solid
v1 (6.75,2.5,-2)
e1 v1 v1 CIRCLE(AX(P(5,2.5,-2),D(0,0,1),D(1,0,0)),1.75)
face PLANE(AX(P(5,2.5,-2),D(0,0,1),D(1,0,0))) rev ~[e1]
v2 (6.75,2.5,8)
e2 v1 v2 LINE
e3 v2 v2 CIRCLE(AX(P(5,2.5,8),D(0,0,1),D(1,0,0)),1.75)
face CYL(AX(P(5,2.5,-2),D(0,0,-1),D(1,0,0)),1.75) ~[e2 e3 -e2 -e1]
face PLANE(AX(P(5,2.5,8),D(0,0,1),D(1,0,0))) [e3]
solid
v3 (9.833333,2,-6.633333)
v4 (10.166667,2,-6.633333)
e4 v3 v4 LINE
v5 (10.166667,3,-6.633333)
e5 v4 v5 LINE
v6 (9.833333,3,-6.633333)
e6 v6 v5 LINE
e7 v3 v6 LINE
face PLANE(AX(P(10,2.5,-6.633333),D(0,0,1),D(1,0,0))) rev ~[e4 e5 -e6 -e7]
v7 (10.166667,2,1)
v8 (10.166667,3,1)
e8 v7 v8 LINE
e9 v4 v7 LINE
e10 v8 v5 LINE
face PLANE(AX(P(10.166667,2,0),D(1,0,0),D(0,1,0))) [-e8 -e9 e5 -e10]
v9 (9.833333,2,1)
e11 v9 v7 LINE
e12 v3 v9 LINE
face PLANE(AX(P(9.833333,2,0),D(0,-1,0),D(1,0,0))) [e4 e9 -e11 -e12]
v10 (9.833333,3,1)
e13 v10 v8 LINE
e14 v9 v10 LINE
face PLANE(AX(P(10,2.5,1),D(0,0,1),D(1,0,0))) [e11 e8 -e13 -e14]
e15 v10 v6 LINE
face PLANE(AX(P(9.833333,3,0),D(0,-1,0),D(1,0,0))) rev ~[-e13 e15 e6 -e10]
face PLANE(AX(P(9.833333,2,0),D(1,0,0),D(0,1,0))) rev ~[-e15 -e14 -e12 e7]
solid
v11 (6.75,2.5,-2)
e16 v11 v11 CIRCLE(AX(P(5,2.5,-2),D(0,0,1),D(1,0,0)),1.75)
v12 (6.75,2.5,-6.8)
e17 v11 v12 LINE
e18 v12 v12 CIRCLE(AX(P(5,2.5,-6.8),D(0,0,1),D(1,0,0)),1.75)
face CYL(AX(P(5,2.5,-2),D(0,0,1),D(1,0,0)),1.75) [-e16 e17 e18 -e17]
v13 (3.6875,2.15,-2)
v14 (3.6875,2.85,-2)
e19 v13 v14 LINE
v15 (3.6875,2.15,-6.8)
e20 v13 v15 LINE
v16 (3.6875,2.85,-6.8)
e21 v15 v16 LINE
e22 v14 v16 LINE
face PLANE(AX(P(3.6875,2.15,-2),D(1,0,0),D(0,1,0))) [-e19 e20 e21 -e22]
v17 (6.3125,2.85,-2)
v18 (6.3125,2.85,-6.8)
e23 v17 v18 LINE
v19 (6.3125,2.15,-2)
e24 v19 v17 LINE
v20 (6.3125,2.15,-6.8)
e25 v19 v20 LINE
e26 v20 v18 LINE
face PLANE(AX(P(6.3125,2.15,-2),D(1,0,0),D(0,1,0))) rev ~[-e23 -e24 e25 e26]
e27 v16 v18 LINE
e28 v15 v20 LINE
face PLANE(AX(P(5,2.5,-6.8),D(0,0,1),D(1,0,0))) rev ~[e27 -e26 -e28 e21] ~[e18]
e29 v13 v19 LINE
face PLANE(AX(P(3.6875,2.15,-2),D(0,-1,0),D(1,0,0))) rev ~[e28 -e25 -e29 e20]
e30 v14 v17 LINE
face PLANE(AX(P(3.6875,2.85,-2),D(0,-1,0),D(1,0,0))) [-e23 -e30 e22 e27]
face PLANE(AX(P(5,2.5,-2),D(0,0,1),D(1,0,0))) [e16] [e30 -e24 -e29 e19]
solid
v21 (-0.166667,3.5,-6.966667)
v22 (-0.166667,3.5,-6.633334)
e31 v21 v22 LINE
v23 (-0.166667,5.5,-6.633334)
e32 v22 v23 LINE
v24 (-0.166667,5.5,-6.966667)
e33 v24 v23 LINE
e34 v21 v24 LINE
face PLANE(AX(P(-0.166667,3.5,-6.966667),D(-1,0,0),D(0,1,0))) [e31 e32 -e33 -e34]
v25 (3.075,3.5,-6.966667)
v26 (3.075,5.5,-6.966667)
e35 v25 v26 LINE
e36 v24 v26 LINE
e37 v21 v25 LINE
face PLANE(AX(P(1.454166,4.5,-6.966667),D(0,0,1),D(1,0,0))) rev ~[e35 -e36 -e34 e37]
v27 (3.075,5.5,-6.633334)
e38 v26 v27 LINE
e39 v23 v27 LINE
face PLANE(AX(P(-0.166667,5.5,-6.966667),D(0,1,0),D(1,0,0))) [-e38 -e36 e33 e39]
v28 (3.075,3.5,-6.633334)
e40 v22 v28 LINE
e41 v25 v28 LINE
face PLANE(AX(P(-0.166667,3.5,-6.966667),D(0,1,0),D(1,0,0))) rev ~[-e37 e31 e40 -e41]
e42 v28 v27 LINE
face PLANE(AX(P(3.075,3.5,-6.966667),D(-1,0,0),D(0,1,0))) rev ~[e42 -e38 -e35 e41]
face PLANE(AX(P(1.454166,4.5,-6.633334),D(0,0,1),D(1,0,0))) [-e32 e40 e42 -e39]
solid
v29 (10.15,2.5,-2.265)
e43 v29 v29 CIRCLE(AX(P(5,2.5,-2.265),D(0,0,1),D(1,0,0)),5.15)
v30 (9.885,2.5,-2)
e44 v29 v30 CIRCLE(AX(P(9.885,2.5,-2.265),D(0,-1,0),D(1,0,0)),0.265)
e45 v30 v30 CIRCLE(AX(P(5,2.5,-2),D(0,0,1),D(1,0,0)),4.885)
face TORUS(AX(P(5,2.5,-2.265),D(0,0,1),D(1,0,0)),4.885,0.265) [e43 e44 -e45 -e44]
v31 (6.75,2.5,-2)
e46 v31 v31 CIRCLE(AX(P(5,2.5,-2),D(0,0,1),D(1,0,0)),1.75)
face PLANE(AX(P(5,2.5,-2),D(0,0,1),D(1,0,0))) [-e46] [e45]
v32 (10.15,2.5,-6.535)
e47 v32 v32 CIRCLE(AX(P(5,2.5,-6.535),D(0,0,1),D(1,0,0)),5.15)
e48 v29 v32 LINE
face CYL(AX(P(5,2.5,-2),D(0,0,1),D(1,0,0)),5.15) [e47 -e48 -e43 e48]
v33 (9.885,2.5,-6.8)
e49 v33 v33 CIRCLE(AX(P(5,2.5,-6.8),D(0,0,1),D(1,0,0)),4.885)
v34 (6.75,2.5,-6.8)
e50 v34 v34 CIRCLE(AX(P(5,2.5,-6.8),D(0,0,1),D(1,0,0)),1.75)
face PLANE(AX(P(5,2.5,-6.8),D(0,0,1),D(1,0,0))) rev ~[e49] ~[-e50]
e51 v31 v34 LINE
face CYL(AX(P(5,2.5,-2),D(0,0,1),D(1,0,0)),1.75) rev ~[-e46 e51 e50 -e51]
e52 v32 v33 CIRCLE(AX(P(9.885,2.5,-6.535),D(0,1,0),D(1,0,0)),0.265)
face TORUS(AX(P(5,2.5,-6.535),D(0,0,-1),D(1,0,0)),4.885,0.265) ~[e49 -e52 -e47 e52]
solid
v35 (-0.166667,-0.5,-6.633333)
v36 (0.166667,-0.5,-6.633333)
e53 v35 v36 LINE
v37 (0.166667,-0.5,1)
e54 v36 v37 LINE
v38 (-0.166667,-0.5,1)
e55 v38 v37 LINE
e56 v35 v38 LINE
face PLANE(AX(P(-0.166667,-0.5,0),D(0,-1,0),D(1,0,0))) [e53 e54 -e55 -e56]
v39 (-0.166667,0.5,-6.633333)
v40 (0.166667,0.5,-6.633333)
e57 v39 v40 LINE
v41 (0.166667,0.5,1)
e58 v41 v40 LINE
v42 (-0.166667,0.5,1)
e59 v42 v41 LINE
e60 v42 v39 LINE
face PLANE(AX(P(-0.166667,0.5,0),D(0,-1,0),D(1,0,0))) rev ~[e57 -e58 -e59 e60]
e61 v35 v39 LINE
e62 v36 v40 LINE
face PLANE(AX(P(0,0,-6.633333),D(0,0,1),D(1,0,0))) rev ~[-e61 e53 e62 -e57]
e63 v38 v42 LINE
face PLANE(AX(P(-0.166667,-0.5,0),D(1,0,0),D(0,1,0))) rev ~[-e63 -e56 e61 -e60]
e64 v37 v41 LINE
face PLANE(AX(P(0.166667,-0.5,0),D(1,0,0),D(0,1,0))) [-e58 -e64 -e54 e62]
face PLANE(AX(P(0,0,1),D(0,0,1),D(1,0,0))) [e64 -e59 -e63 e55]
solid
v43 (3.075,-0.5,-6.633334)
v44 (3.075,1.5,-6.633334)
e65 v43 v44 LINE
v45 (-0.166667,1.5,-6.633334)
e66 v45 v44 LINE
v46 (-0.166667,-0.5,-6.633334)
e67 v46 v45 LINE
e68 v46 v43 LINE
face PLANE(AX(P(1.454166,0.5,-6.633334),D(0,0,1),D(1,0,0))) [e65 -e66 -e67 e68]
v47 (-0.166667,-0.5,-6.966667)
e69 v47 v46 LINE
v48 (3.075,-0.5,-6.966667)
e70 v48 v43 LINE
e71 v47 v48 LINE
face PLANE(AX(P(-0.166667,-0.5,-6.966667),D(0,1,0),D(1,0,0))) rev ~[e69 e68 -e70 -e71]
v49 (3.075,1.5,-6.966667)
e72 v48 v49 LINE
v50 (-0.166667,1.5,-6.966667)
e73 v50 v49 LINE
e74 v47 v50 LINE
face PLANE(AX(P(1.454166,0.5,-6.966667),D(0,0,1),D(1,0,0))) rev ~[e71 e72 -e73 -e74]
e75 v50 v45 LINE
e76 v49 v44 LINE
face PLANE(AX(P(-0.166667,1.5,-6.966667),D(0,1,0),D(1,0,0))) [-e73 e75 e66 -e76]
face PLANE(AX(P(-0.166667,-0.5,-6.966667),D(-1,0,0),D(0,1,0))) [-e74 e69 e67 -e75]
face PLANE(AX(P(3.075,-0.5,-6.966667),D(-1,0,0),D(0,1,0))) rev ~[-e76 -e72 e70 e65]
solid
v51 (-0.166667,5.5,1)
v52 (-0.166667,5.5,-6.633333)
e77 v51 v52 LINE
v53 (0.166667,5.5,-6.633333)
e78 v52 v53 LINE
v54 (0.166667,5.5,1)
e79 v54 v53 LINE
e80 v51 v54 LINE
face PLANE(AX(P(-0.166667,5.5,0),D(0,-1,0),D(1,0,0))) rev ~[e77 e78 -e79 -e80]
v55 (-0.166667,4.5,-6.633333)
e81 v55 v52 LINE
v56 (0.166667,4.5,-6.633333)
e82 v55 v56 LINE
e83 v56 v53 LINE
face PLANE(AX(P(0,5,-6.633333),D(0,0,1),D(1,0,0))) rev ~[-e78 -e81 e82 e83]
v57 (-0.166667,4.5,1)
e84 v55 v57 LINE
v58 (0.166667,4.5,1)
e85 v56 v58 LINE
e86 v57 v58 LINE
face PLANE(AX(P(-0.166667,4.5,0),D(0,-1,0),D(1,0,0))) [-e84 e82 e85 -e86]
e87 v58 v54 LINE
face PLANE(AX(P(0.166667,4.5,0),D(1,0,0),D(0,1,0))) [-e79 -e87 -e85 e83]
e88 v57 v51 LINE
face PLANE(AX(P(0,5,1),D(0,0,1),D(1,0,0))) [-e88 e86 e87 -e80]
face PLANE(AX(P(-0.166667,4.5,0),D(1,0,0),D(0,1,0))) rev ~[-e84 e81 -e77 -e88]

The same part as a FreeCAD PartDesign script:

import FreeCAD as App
import Part
import Sketcher
from FreeCAD import Vector
Q = App.Units.Quantity


def edges_at(feature, points):
    """Names of the edges that pass closest to the given points."""
    edges = feature.Shape.Edges
    near = lambda p: min(range(len(edges)), key=lambda i: edges[i].distToShape(Part.Vertex(*p))[0])
    return sorted({f"Edge{near(p) + 1}" for p in points})

doc = App.newDocument("Part")
body = doc.addObject("PartDesign::Body", "Body")
body.AllowCompound = True

# Sketch on XY plane
sketch1 = body.newObject("Sketcher::SketchObject", "Sketch")
sketch1.AttachmentSupport = (doc.getObject("XY_Plane"), [""])
sketch1.MapMode = "FlatFace"
sketch1.addGeometry(Part.LineSegment(Vector(-0.17, 5.5, 0), Vector(-0.17, 4.5, 0)), False)
sketch1.addGeometry(Part.LineSegment(Vector(-0.17, 4.5, 0), Vector(0.17, 4.5, 0)), False)
sketch1.addGeometry(Part.LineSegment(Vector(0.17, 4.5, 0), Vector(0.17, 5.5, 0)), False)
sketch1.addGeometry(Part.LineSegment(Vector(0.17, 5.5, 0), Vector(-0.17, 5.5, 0)), False)
sketch1.addGeometry(Part.LineSegment(Vector(9.83, 3, 0), Vector(9.83, 2, 0)), False)
sketch1.addGeometry(Part.LineSegment(Vector(9.83, 2, 0), Vector(10.17, 2, 0)), False)
sketch1.addGeometry(Part.LineSegment(Vector(10.17, 2, 0), Vector(10.17, 3, 0)), False)
sketch1.addGeometry(Part.LineSegment(Vector(10.17, 3, 0), Vector(9.83, 3, 0)), False)
sketch1.addGeometry(Part.LineSegment(Vector(-0.17, 0.5, 0), Vector(-0.17, -0.5, 0)), False)
sketch1.addGeometry(Part.LineSegment(Vector(-0.17, -0.5, 0), Vector(0.17, -0.5, 0)), False)
sketch1.addGeometry(Part.LineSegment(Vector(0.17, -0.5, 0), Vector(0.17, 0.5, 0)), False)
sketch1.addGeometry(Part.LineSegment(Vector(0.17, 0.5, 0), Vector(-0.17, 0.5, 0)), False)
sketch1.addConstraint(Sketcher.Constraint("Coincident", 0, 2, 1, 1))
sketch1.addConstraint(Sketcher.Constraint("Coincident", 1, 2, 2, 1))
sketch1.addConstraint(Sketcher.Constraint("Coincident", 2, 2, 3, 1))
sketch1.addConstraint(Sketcher.Constraint("Coincident", 3, 2, 0, 1))
sketch1.addConstraint(Sketcher.Constraint("Coincident", 4, 2, 5, 1))
sketch1.addConstraint(Sketcher.Constraint("Coincident", 5, 2, 6, 1))
sketch1.addConstraint(Sketcher.Constraint("Coincident", 6, 2, 7, 1))
sketch1.addConstraint(Sketcher.Constraint("Coincident", 7, 2, 4, 1))
sketch1.addConstraint(Sketcher.Constraint("Coincident", 8, 2, 9, 1))
sketch1.addConstraint(Sketcher.Constraint("Coincident", 9, 2, 10, 1))
sketch1.addConstraint(Sketcher.Constraint("Coincident", 10, 2, 11, 1))
sketch1.addConstraint(Sketcher.Constraint("Coincident", 11, 2, 8, 1))
sketch1.addConstraint(Sketcher.Constraint("Vertical", 0))
sketch1.addConstraint(Sketcher.Constraint("Horizontal", 1))
sketch1.addConstraint(Sketcher.Constraint("Vertical", 2))
sketch1.addConstraint(Sketcher.Constraint("Horizontal", 3))
sketch1.addConstraint(Sketcher.Constraint("Vertical", 4))
sketch1.addConstraint(Sketcher.Constraint("Horizontal", 5))
sketch1.addConstraint(Sketcher.Constraint("Vertical", 6))
sketch1.addConstraint(Sketcher.Constraint("Horizontal", 7))
sketch1.addConstraint(Sketcher.Constraint("Vertical", 8))
sketch1.addConstraint(Sketcher.Constraint("Horizontal", 9))
sketch1.addConstraint(Sketcher.Constraint("Vertical", 10))
sketch1.addConstraint(Sketcher.Constraint("Horizontal", 11))
sketch1.addConstraint(Sketcher.Constraint("Symmetric", 8, 2, 10, 2, -1, 1))
sketch1.addConstraint(Sketcher.Constraint("Vertical", 3, 2, 8, 2))
sketch1.addConstraint(Sketcher.Constraint("Vertical", 2, 2, 9, 2))
sketch1.addConstraint(Sketcher.Constraint("Equal", 3, 5))
sketch1.addConstraint(Sketcher.Constraint("Equal", 2, 4))
sketch1.addConstraint(Sketcher.Constraint("Equal", 6, 8))
sketch1.addConstraint(Sketcher.Constraint("DistanceY", 0, 2, 0, 1, Q("1 mm")))
sketch1.addConstraint(Sketcher.Constraint("DistanceY", -1, 1, 4, 2, Q("2 mm")))
sketch1.addConstraint(Sketcher.Constraint("DistanceX", 0, 2, 4, 2, Q("10 mm")))
sketch1.addConstraint(Sketcher.Constraint("DistanceY", 8, 2, 0, 2, Q("5 mm")))
sketch1.addConstraint(Sketcher.Constraint("DistanceX", 1, 1, 1, 2, Q("0.333334 mm")))
pad1 = body.newObject("PartDesign::Pad", "Pad")
pad1.Profile = sketch1
pad1.Type = "TwoLengths"
pad1.Length = 1
pad1.Length2 = 6.633333
body2 = doc.addObject("PartDesign::Body", "Body001")

# Sketch on XY plane
sketch2 = body2.newObject("Sketcher::SketchObject", "Sketch001")
sketch2.AttachmentSupport = (doc.getObject("XY_Plane001"), [""])
sketch2.MapMode = "FlatFace"
sketch2.AttachmentOffset = App.Placement(Vector(0, 0, -2), App.Rotation())
sketch2.addGeometry(Part.Circle(Vector(5, 2.5, 0), Vector(0, 0, 1), 1.8), False)
sketch2.addGeometry(Part.LineSegment(Vector(6.3, 2.1, 0), Vector(3.7, 2.1, 0)), False)
sketch2.addGeometry(Part.LineSegment(Vector(3.7, 2.1, 0), Vector(3.7, 2.9, 0)), False)
sketch2.addGeometry(Part.LineSegment(Vector(3.7, 2.9, 0), Vector(6.3, 2.9, 0)), False)
sketch2.addGeometry(Part.LineSegment(Vector(6.3, 2.9, 0), Vector(6.3, 2.1, 0)), False)
sketch2.addConstraint(Sketcher.Constraint("Coincident", 1, 2, 2, 1))
sketch2.addConstraint(Sketcher.Constraint("Coincident", 2, 2, 3, 1))
sketch2.addConstraint(Sketcher.Constraint("Coincident", 3, 2, 4, 1))
sketch2.addConstraint(Sketcher.Constraint("Coincident", 4, 2, 1, 1))
sketch2.addConstraint(Sketcher.Constraint("Horizontal", 1))
sketch2.addConstraint(Sketcher.Constraint("Vertical", 2))
sketch2.addConstraint(Sketcher.Constraint("Horizontal", 3))
sketch2.addConstraint(Sketcher.Constraint("Vertical", 4))
sketch2.addConstraint(Sketcher.Constraint("Diameter", 0, Q("3.5 mm")))
sketch2.addConstraint(Sketcher.Constraint("DistanceY", 2, 1, 2, 2, Q("0.7 mm")))
sketch2.addConstraint(Sketcher.Constraint("DistanceX", -1, 1, 0, 3, Q("5 mm")))
sketch2.addConstraint(Sketcher.Constraint("DistanceY", -1, 1, 0, 3, Q("2.5 mm")))
sketch2.addConstraint(Sketcher.Constraint("DistanceX", 1, 2, 1, 1, Q("2.625 mm")))
sketch2.addConstraint(Sketcher.Constraint("DistanceY", -1, 1, 1, 2, Q("2.15 mm")))
sketch2.addConstraint(Sketcher.Constraint("DistanceX", -1, 1, 1, 2, Q("3.6875 mm")))
pad2 = body2.newObject("PartDesign::Pad", "Pad001")
pad2.Profile = sketch2
pad2.Length = 4.8
pad2.Reversed = True
body3 = doc.addObject("PartDesign::Body", "Body002")

# Sketch on XY plane
sketch3 = body3.newObject("Sketcher::SketchObject", "Sketch002")
sketch3.AttachmentSupport = (doc.getObject("XY_Plane002"), [""])
sketch3.MapMode = "FlatFace"
sketch3.AttachmentOffset = App.Placement(Vector(0, 0, -2), App.Rotation())
sketch3.addGeometry(Part.Circle(Vector(5, 2.5, 0), Vector(0, 0, 1), 5.2), False)
sketch3.addGeometry(Part.Circle(Vector(5, 2.5, 0), Vector(0, 0, 1), 1.8), False)
sketch3.addConstraint(Sketcher.Constraint("Coincident", 1, 3, 0, 3))
sketch3.addConstraint(Sketcher.Constraint("Diameter", 0, Q("10.3 mm")))
sketch3.addConstraint(Sketcher.Constraint("Diameter", 1, Q("3.5 mm")))
sketch3.addConstraint(Sketcher.Constraint("DistanceX", -1, 1, 0, 3, Q("5 mm")))
sketch3.addConstraint(Sketcher.Constraint("DistanceY", -1, 1, 0, 3, Q("2.5 mm")))
pad3 = body3.newObject("PartDesign::Pad", "Pad002")
pad3.Profile = sketch3
pad3.Length = 4.8
pad3.Reversed = True
doc.recompute()

fillet = body3.newObject("PartDesign::Fillet", "Fillet")
fillet.Base = (pad3, edges_at(pad3, [(-0.15, 2.5, -2), (-0.15, 2.5, -6.8)]))
fillet.Radius = 0.265
body4 = doc.addObject("PartDesign::Body", "Body003")
body4.AllowCompound = True

# Sketch on XY plane
sketch4 = body4.newObject("Sketcher::SketchObject", "Sketch003")
sketch4.AttachmentSupport = (doc.getObject("XY_Plane003"), [""])
sketch4.MapMode = "FlatFace"
sketch4.AttachmentOffset = App.Placement(Vector(0, 0, -6.966667), App.Rotation())
sketch4.addGeometry(Part.LineSegment(Vector(-0.2, 5.5, 0), Vector(-0.2, 3.5, 0)), False)
sketch4.addGeometry(Part.LineSegment(Vector(-0.2, 3.5, 0), Vector(3.1, 3.5, 0)), False)
sketch4.addGeometry(Part.LineSegment(Vector(3.1, 3.5, 0), Vector(3.1, 5.5, 0)), False)
sketch4.addGeometry(Part.LineSegment(Vector(3.1, 5.5, 0), Vector(-0.2, 5.5, 0)), False)
sketch4.addGeometry(Part.LineSegment(Vector(-0.2, 1.5, 0), Vector(-0.2, -0.5, 0)), False)
sketch4.addGeometry(Part.LineSegment(Vector(-0.2, -0.5, 0), Vector(3.1, -0.5, 0)), False)
sketch4.addGeometry(Part.LineSegment(Vector(3.1, -0.5, 0), Vector(3.1, 1.5, 0)), False)
sketch4.addGeometry(Part.LineSegment(Vector(3.1, 1.5, 0), Vector(-0.2, 1.5, 0)), False)
sketch4.addConstraint(Sketcher.Constraint("Coincident", 0, 2, 1, 1))
sketch4.addConstraint(Sketcher.Constraint("Coincident", 1, 2, 2, 1))
sketch4.addConstraint(Sketcher.Constraint("Coincident", 2, 2, 3, 1))
sketch4.addConstraint(Sketcher.Constraint("Coincident", 3, 2, 0, 1))
sketch4.addConstraint(Sketcher.Constraint("Coincident", 4, 2, 5, 1))
sketch4.addConstraint(Sketcher.Constraint("Coincident", 5, 2, 6, 1))
sketch4.addConstraint(Sketcher.Constraint("Coincident", 6, 2, 7, 1))
sketch4.addConstraint(Sketcher.Constraint("Coincident", 7, 2, 4, 1))
sketch4.addConstraint(Sketcher.Constraint("Vertical", 0))
sketch4.addConstraint(Sketcher.Constraint("Horizontal", 1))
sketch4.addConstraint(Sketcher.Constraint("Vertical", 2))
sketch4.addConstraint(Sketcher.Constraint("Horizontal", 3))
sketch4.addConstraint(Sketcher.Constraint("Vertical", 4))
sketch4.addConstraint(Sketcher.Constraint("Horizontal", 5))
sketch4.addConstraint(Sketcher.Constraint("Vertical", 6))
sketch4.addConstraint(Sketcher.Constraint("Horizontal", 7))
sketch4.addConstraint(Sketcher.Constraint("Vertical", 3, 2, 4, 2))
sketch4.addConstraint(Sketcher.Constraint("Vertical", 2, 2, 5, 2))
sketch4.addConstraint(Sketcher.Constraint("Equal", 2, 4))
sketch4.addConstraint(Sketcher.Constraint("DistanceY", 0, 2, 0, 1, Q("2 mm")))
sketch4.addConstraint(Sketcher.Constraint("DistanceY", 4, 2, 0, 2, Q("4 mm")))
sketch4.addConstraint(Sketcher.Constraint("DistanceY", -1, 1, 0, 2, Q("3.5 mm")))
sketch4.addConstraint(Sketcher.Constraint("DistanceX", -1, 1, 1, 2, Q("3.075 mm")))
sketch4.addConstraint(Sketcher.Constraint("DistanceX", 1, 1, 1, 2, Q("3.241667 mm")))
pad4 = body4.newObject("PartDesign::Pad", "Pad003")
pad4.Profile = sketch4
pad4.Length = 0.333333
body5 = doc.addObject("PartDesign::Body", "Body004")

# Sketch on XY plane
sketch5 = body5.newObject("Sketcher::SketchObject", "Sketch004")
sketch5.AttachmentSupport = (doc.getObject("XY_Plane004"), [""])
sketch5.MapMode = "FlatFace"
sketch5.AttachmentOffset = App.Placement(Vector(0, 0, -2), App.Rotation())
sketch5.addGeometry(Part.Circle(Vector(5, 2.5, 0), Vector(0, 0, 1), 1.8), False)
sketch5.addConstraint(Sketcher.Constraint("Diameter", 0, Q("3.5 mm")))
sketch5.addConstraint(Sketcher.Constraint("DistanceX", -1, 1, 0, 3, Q("5 mm")))
sketch5.addConstraint(Sketcher.Constraint("DistanceY", -1, 1, 0, 3, Q("2.5 mm")))
pad5 = body5.newObject("PartDesign::Pad", "Pad004")
pad5.Profile = sketch5
pad5.Length = 10

doc.recompute()
